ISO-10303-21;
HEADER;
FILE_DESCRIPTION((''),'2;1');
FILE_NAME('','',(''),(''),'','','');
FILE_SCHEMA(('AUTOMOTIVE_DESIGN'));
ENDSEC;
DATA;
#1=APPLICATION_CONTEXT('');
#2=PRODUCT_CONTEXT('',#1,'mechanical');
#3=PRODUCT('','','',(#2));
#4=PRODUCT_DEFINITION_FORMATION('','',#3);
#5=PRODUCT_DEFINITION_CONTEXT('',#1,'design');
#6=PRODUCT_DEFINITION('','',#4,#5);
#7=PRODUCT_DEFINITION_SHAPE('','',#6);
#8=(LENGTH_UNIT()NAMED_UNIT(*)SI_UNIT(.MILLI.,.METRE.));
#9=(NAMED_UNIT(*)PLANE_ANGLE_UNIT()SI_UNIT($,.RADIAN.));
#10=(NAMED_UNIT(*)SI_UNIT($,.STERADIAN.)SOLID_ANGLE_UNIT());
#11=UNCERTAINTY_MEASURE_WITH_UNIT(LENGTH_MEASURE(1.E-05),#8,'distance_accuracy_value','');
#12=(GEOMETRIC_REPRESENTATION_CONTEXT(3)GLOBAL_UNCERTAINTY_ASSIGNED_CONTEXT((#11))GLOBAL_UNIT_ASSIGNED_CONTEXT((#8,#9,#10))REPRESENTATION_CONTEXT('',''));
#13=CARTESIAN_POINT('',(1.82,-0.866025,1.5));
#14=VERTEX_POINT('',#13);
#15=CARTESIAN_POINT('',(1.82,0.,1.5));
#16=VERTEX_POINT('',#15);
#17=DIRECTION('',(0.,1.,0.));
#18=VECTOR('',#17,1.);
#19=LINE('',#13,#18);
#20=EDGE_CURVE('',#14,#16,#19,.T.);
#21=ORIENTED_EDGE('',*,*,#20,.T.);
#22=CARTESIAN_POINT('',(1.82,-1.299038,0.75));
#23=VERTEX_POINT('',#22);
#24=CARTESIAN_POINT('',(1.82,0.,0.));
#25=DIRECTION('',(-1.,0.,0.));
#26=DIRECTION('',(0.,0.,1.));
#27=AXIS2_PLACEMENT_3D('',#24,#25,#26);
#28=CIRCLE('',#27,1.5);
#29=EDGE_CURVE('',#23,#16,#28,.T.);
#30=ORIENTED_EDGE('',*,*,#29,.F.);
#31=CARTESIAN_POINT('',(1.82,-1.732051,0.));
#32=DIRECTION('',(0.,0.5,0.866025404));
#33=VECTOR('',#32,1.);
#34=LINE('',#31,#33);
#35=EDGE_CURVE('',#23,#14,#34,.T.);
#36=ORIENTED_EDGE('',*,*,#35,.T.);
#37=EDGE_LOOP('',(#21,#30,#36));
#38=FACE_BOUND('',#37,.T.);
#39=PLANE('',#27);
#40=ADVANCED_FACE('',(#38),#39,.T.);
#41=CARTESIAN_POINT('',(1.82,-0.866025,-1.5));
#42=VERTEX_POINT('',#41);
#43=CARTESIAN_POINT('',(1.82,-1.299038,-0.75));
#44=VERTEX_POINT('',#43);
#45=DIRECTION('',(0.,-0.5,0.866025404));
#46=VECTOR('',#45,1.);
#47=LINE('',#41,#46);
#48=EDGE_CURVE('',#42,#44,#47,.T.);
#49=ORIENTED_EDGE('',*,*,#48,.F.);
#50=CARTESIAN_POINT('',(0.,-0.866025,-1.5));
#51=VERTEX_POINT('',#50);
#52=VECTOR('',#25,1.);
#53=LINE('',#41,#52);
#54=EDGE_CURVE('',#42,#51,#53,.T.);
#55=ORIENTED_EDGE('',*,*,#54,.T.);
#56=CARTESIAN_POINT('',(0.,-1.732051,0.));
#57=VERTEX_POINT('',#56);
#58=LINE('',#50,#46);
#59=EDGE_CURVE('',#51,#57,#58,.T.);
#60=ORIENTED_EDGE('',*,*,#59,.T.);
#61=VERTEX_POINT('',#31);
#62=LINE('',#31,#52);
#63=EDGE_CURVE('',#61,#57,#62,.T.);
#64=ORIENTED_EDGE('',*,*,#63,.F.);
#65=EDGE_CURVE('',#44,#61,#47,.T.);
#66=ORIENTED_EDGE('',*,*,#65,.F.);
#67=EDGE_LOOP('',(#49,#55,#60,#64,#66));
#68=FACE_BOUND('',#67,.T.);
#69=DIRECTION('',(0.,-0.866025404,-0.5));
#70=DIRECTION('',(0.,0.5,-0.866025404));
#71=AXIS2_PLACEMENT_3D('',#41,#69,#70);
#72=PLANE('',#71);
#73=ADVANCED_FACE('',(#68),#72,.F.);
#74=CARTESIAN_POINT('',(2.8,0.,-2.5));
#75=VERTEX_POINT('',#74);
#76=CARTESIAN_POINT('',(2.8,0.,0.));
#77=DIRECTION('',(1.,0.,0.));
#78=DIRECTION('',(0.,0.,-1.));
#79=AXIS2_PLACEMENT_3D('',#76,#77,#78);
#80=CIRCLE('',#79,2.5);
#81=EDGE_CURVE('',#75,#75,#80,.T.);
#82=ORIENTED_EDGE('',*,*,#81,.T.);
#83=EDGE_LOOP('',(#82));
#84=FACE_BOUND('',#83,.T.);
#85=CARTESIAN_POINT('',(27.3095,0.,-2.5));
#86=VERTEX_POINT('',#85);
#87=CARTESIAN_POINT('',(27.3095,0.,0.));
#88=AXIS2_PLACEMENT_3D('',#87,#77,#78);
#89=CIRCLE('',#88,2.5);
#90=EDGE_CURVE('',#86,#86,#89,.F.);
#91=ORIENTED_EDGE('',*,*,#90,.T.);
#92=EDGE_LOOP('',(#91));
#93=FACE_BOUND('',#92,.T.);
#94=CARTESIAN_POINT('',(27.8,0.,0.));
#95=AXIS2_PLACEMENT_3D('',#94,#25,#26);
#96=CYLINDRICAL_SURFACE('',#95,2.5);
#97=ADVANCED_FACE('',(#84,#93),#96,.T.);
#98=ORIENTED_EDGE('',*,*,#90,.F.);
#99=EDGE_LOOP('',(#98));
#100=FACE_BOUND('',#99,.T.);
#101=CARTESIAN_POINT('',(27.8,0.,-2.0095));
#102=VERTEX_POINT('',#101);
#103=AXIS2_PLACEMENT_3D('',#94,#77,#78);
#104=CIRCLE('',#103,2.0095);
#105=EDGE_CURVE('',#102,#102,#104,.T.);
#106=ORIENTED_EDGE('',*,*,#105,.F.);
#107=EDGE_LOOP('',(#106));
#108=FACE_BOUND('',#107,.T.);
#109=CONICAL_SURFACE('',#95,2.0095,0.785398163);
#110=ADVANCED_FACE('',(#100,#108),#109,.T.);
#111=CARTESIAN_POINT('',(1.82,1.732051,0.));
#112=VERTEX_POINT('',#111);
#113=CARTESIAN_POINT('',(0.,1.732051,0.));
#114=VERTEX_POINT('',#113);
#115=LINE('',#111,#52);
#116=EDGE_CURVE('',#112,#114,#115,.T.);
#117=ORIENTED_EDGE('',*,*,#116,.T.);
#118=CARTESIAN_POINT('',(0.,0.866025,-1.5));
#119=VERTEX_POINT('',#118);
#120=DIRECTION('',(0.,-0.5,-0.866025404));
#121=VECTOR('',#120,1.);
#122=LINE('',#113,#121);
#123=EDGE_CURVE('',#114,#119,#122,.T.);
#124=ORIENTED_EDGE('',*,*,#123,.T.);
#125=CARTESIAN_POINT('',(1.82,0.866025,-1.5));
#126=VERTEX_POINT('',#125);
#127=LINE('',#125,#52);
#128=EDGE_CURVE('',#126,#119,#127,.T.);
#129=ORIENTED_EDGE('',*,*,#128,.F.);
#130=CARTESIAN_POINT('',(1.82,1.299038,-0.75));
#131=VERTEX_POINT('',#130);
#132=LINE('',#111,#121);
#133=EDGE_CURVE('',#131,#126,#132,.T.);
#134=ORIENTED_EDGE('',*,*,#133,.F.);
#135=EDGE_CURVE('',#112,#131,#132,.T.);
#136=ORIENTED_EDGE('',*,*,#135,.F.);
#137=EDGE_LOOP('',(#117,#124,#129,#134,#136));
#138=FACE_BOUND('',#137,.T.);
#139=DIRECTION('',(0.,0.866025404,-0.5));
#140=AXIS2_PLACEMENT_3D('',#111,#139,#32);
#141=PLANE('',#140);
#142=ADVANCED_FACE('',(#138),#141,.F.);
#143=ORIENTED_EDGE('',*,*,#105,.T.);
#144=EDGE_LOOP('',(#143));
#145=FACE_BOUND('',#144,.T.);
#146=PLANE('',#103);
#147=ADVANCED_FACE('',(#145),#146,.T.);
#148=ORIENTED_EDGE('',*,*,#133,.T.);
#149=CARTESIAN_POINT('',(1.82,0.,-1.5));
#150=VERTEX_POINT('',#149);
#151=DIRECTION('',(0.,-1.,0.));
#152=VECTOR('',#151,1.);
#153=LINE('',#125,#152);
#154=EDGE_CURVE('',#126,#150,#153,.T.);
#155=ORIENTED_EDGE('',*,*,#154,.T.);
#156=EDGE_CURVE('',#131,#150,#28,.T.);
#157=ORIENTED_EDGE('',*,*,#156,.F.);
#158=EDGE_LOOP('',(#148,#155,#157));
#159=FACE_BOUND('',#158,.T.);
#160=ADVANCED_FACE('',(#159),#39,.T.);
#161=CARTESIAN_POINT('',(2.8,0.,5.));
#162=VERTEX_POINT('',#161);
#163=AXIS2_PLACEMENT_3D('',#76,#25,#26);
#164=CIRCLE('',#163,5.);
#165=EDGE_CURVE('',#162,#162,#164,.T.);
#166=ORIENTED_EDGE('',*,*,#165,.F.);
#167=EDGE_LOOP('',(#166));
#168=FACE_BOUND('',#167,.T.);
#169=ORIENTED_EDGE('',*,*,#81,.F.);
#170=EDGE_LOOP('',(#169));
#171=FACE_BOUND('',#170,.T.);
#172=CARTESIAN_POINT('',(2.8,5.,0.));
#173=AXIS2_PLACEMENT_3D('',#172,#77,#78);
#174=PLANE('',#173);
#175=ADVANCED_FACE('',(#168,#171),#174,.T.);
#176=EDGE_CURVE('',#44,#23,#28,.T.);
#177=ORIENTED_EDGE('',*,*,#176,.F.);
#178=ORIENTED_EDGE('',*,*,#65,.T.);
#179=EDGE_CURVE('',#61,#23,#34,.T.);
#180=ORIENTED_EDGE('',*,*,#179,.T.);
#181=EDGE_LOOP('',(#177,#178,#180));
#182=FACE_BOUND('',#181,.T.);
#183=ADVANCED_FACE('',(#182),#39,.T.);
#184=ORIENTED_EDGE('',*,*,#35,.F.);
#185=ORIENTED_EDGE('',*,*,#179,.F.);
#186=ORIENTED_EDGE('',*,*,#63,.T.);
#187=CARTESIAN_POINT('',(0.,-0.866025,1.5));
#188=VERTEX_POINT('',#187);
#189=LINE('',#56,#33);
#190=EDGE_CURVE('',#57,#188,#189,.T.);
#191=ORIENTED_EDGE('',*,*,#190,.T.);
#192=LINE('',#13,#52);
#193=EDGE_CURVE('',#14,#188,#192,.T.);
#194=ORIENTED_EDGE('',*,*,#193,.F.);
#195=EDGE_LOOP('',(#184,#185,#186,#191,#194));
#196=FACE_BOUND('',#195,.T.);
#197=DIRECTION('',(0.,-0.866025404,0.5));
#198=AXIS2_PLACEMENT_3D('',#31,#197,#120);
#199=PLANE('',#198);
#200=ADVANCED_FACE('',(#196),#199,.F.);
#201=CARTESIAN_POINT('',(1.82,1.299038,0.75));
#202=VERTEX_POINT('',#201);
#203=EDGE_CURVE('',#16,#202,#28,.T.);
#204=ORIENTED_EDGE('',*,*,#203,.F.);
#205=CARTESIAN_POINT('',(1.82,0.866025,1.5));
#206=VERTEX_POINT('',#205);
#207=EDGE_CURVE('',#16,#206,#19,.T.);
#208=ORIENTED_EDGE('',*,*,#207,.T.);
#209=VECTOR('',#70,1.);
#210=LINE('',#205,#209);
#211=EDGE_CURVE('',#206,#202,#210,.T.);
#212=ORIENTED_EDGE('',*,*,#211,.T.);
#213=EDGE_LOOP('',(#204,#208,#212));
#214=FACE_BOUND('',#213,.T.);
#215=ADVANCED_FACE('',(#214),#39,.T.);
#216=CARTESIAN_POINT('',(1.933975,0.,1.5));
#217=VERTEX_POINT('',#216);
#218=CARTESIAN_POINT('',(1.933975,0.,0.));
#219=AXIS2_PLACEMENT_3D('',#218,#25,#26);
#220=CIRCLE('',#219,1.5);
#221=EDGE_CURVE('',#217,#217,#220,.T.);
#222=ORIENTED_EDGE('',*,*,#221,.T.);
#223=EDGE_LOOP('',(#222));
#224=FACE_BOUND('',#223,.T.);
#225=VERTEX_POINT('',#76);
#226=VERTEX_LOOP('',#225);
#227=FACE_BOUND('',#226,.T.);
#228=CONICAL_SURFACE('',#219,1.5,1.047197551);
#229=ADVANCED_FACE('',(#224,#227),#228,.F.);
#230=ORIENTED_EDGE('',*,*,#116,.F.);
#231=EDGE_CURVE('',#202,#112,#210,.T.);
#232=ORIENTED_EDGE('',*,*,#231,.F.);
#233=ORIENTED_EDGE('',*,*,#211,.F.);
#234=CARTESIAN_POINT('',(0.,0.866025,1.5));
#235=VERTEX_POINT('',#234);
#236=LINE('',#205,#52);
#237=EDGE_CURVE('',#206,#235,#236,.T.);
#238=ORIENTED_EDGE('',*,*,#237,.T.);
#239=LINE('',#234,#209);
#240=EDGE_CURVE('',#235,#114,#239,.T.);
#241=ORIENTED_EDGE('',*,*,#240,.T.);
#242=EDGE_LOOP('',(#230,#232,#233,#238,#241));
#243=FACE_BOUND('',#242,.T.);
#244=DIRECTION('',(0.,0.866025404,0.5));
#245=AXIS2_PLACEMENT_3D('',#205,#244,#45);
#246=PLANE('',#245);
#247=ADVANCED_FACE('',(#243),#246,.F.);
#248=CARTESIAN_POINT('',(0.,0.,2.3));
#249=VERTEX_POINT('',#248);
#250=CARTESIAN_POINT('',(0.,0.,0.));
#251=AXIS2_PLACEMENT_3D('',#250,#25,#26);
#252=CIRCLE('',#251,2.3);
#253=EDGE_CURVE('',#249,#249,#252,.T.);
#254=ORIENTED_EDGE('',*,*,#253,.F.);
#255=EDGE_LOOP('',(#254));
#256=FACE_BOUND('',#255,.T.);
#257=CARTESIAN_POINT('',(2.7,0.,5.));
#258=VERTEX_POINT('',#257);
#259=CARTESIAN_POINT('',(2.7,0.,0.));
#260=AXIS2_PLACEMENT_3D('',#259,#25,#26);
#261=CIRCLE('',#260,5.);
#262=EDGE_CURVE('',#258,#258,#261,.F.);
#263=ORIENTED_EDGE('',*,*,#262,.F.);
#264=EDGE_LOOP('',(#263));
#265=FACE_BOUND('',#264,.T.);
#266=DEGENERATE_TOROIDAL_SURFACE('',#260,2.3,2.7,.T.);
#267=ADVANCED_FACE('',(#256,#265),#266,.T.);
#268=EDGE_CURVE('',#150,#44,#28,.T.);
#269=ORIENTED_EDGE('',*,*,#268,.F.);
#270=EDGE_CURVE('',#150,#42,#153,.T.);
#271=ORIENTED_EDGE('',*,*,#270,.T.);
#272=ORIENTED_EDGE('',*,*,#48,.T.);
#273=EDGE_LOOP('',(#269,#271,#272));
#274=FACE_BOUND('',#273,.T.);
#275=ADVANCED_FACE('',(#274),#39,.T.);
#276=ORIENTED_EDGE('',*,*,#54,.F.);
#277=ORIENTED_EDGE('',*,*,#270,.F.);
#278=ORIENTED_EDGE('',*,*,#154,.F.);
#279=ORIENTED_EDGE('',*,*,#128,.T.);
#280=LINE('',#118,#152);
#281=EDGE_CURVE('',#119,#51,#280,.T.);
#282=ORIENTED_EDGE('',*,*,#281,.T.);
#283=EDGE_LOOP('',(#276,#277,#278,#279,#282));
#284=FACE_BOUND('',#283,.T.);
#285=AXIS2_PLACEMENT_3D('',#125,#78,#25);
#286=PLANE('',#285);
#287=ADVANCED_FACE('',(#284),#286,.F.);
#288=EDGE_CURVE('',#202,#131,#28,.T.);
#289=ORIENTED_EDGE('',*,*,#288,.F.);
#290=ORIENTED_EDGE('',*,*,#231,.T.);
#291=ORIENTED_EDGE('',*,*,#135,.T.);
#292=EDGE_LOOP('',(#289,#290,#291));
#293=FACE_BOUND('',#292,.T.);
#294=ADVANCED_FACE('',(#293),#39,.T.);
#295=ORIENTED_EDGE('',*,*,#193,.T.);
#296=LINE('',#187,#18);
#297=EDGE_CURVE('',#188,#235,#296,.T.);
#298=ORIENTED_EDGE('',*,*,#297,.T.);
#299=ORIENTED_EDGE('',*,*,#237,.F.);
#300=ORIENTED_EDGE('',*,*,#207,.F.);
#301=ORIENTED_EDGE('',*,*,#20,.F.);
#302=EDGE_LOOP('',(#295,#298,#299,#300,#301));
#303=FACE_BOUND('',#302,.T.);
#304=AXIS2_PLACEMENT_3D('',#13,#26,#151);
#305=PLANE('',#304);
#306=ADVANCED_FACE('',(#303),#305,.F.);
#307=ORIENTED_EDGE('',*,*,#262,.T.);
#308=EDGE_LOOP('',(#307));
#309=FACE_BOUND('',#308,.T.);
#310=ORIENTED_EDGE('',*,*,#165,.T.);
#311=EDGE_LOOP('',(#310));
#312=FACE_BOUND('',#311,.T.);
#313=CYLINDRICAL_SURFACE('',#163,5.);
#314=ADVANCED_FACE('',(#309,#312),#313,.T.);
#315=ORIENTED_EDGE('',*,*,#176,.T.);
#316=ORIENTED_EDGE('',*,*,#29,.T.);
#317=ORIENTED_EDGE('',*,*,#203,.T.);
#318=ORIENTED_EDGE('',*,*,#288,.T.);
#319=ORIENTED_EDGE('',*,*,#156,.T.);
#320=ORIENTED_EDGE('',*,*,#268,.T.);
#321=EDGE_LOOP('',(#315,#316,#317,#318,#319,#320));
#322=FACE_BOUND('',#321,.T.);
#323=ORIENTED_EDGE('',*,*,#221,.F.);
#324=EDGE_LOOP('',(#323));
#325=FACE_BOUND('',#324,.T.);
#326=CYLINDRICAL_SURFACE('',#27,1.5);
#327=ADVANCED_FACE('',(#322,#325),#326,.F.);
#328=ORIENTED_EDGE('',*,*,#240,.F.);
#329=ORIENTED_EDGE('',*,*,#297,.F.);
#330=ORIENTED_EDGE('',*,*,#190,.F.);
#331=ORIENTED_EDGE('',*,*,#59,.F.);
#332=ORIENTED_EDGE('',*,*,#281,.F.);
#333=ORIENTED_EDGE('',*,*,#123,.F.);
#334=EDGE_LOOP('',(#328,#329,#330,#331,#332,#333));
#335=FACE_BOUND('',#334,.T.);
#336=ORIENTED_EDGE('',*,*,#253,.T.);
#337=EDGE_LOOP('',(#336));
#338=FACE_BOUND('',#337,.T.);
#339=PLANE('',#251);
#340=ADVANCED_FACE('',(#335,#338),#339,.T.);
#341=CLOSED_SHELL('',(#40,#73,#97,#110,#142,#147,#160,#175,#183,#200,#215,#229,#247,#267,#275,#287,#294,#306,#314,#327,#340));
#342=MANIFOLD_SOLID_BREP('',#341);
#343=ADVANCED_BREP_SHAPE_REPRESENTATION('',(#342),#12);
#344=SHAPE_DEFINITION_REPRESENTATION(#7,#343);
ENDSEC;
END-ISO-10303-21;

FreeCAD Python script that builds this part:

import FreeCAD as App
import Part
import Sketcher

V = App.Vector
Q = App.Units.Quantity


def edges_at(feature, points):
    """Names of the edges that pass closest to the given points."""
    edges = feature.Shape.Edges
    near = lambda p: min(range(len(edges)), key=lambda i: edges[i].distToShape(Part.Vertex(*p))[0])
    return sorted({f"Edge{near(p) + 1}" for p in points})


def add_polygon(sketch, points):
    """Adds a closed chain of lines whose ends are joined by coincident constraints."""
    first, n = sketch.GeometryCount, len(points)
    for a, b in zip(points, points[1:] + points[:1]):
        sketch.addGeometry(Part.LineSegment(App.Vector(*a, 0), App.Vector(*b, 0)), False)
    for i in range(n):
        sketch.addConstraint(Sketcher.Constraint("Coincident", first + i, 2, first + (i + 1) % n, 1))

doc = App.newDocument("Part")
body = doc.addObject("PartDesign::Body", "Body")

sketch1 = body.newObject("Sketcher::SketchObject", "Sketch")
sketch1.AttachmentSupport = (doc.getObject("XY_Plane"), [""])
sketch1.MapMode = "FlatFace"
add_polygon(sketch1, [(2.8, 5), (2.8, 0), (0, 0), (0, 5)])
sketch1.addConstraint([
    Sketcher.Constraint("Vertical", 0),
    Sketcher.Constraint("Horizontal", 1),
    Sketcher.Constraint("Vertical", 2),
    Sketcher.Constraint("Horizontal", 3),
    Sketcher.Constraint("Coincident", 1, 2, -1, 1),
    Sketcher.Constraint("DistanceY", 0, 2, 0, 1, Q("5 mm")),
    Sketcher.Constraint("DistanceX", 1, 2, 1, 1, Q("2.8 mm")),
])
revolution = body.newObject("PartDesign::Revolution", "Revolution")
revolution.Profile = sketch1
revolution.ReferenceAxis = (sketch1, ["H_Axis"])
revolution.Angle = 360

sketch2 = body.newObject("Sketcher::SketchObject", "Sketch001")
sketch2.AttachmentSupport = (doc.getObject("YZ_Plane"), [""])
sketch2.MapMode = "FlatFace"
sketch2.AttachmentOffset = App.Placement(V(0, 0, 2.8), App.Rotation())
sketch2.addGeometry(Part.Circle(V(0, 0, 0), V(0, 0, 1), 2.5), False)
sketch2.addConstraint([
    Sketcher.Constraint("Coincident", 0, 3, -1, 1),
    Sketcher.Constraint("Diameter", 0, Q("5 mm")),
])
pad1 = body.newObject("PartDesign::Pad", "Pad")
pad1.Profile = sketch2
pad1.Length = 25

sketch3 = body.newObject("Sketcher::SketchObject", "Sketch002")
sketch3.AttachmentSupport = (doc.getObject("YZ_Plane"), [""])
sketch3.MapMode = "FlatFace"
add_polygon(sketch3, [(1.732051, 0), (0.866025, -1.5), (-0.866025, -1.5), (-1.732051, 0), (-0.866025, 1.5), (0.866025, 1.5)])
sketch3.addConstraint([
    Sketcher.Constraint("Horizontal", 1),
    Sketcher.Constraint("Horizontal", 4),
    Sketcher.Constraint("Symmetric", 0, 2, 3, 2, -1, 1),
    Sketcher.Constraint("Symmetric", 2, 2, 5, 2, -1, 1),
    Sketcher.Constraint("PointOnObject", 2, 2, -1),
    Sketcher.Constraint("Parallel", 2, 5),
    Sketcher.Constraint("Vertical", 1, 2, 3, 2),
    Sketcher.Constraint("Angle", 0, Q("-120 deg")),
    Sketcher.Constraint("DistanceY", 1, 2, 3, 2, Q("3 mm")),
    Sketcher.Constraint("DistanceX", 1, 2, 1, 1, Q("1.732051 mm")),
])
pocket1 = body.newObject("PartDesign::Pocket", "Pocket")
pocket1.Profile = sketch3
pocket1.Length = 1.82
pocket1.Reversed = True

sketch4 = body.newObject("Sketcher::SketchObject", "Sketch003")
sketch4.AttachmentSupport = (doc.getObject("YZ_Plane"), [""])
sketch4.MapMode = "FlatFace"
sketch4.AttachmentOffset = App.Placement(V(0, 0, 1.82), App.Rotation())
sketch4.addGeometry(Part.Circle(V(0, 0, 0), V(0, 0, 1), 1.5), False)
sketch4.addConstraint([
    Sketcher.Constraint("Coincident", 0, 3, -1, 1),
    Sketcher.Constraint("Diameter", 0, Q("3 mm")),
])
doc.recompute()
hole = body.newObject("PartDesign::Hole", "Hole")
hole.Profile = sketch4
hole.ThreadType = "None"
hole.Diameter = 3
hole.DepthType = "Dimension"
hole.Depth = 0.113975
hole.DrillPoint = "Angled"
hole.DrillPointAngle = 120
hole.Reversed = True
doc.recompute()

chamfer = body.newObject("PartDesign::Chamfer", "Chamfer")
chamfer.Base = (hole, edges_at(hole, [(27.8, 0, 2.5)]))
chamfer.Size = 0.4905
doc.recompute()

fillet = body.newObject("PartDesign::Fillet", "Fillet")
fillet.Base = (chamfer, edges_at(chamfer, [(0, -5, 0)]))
fillet.Radius = 2.7

doc.recompute()
